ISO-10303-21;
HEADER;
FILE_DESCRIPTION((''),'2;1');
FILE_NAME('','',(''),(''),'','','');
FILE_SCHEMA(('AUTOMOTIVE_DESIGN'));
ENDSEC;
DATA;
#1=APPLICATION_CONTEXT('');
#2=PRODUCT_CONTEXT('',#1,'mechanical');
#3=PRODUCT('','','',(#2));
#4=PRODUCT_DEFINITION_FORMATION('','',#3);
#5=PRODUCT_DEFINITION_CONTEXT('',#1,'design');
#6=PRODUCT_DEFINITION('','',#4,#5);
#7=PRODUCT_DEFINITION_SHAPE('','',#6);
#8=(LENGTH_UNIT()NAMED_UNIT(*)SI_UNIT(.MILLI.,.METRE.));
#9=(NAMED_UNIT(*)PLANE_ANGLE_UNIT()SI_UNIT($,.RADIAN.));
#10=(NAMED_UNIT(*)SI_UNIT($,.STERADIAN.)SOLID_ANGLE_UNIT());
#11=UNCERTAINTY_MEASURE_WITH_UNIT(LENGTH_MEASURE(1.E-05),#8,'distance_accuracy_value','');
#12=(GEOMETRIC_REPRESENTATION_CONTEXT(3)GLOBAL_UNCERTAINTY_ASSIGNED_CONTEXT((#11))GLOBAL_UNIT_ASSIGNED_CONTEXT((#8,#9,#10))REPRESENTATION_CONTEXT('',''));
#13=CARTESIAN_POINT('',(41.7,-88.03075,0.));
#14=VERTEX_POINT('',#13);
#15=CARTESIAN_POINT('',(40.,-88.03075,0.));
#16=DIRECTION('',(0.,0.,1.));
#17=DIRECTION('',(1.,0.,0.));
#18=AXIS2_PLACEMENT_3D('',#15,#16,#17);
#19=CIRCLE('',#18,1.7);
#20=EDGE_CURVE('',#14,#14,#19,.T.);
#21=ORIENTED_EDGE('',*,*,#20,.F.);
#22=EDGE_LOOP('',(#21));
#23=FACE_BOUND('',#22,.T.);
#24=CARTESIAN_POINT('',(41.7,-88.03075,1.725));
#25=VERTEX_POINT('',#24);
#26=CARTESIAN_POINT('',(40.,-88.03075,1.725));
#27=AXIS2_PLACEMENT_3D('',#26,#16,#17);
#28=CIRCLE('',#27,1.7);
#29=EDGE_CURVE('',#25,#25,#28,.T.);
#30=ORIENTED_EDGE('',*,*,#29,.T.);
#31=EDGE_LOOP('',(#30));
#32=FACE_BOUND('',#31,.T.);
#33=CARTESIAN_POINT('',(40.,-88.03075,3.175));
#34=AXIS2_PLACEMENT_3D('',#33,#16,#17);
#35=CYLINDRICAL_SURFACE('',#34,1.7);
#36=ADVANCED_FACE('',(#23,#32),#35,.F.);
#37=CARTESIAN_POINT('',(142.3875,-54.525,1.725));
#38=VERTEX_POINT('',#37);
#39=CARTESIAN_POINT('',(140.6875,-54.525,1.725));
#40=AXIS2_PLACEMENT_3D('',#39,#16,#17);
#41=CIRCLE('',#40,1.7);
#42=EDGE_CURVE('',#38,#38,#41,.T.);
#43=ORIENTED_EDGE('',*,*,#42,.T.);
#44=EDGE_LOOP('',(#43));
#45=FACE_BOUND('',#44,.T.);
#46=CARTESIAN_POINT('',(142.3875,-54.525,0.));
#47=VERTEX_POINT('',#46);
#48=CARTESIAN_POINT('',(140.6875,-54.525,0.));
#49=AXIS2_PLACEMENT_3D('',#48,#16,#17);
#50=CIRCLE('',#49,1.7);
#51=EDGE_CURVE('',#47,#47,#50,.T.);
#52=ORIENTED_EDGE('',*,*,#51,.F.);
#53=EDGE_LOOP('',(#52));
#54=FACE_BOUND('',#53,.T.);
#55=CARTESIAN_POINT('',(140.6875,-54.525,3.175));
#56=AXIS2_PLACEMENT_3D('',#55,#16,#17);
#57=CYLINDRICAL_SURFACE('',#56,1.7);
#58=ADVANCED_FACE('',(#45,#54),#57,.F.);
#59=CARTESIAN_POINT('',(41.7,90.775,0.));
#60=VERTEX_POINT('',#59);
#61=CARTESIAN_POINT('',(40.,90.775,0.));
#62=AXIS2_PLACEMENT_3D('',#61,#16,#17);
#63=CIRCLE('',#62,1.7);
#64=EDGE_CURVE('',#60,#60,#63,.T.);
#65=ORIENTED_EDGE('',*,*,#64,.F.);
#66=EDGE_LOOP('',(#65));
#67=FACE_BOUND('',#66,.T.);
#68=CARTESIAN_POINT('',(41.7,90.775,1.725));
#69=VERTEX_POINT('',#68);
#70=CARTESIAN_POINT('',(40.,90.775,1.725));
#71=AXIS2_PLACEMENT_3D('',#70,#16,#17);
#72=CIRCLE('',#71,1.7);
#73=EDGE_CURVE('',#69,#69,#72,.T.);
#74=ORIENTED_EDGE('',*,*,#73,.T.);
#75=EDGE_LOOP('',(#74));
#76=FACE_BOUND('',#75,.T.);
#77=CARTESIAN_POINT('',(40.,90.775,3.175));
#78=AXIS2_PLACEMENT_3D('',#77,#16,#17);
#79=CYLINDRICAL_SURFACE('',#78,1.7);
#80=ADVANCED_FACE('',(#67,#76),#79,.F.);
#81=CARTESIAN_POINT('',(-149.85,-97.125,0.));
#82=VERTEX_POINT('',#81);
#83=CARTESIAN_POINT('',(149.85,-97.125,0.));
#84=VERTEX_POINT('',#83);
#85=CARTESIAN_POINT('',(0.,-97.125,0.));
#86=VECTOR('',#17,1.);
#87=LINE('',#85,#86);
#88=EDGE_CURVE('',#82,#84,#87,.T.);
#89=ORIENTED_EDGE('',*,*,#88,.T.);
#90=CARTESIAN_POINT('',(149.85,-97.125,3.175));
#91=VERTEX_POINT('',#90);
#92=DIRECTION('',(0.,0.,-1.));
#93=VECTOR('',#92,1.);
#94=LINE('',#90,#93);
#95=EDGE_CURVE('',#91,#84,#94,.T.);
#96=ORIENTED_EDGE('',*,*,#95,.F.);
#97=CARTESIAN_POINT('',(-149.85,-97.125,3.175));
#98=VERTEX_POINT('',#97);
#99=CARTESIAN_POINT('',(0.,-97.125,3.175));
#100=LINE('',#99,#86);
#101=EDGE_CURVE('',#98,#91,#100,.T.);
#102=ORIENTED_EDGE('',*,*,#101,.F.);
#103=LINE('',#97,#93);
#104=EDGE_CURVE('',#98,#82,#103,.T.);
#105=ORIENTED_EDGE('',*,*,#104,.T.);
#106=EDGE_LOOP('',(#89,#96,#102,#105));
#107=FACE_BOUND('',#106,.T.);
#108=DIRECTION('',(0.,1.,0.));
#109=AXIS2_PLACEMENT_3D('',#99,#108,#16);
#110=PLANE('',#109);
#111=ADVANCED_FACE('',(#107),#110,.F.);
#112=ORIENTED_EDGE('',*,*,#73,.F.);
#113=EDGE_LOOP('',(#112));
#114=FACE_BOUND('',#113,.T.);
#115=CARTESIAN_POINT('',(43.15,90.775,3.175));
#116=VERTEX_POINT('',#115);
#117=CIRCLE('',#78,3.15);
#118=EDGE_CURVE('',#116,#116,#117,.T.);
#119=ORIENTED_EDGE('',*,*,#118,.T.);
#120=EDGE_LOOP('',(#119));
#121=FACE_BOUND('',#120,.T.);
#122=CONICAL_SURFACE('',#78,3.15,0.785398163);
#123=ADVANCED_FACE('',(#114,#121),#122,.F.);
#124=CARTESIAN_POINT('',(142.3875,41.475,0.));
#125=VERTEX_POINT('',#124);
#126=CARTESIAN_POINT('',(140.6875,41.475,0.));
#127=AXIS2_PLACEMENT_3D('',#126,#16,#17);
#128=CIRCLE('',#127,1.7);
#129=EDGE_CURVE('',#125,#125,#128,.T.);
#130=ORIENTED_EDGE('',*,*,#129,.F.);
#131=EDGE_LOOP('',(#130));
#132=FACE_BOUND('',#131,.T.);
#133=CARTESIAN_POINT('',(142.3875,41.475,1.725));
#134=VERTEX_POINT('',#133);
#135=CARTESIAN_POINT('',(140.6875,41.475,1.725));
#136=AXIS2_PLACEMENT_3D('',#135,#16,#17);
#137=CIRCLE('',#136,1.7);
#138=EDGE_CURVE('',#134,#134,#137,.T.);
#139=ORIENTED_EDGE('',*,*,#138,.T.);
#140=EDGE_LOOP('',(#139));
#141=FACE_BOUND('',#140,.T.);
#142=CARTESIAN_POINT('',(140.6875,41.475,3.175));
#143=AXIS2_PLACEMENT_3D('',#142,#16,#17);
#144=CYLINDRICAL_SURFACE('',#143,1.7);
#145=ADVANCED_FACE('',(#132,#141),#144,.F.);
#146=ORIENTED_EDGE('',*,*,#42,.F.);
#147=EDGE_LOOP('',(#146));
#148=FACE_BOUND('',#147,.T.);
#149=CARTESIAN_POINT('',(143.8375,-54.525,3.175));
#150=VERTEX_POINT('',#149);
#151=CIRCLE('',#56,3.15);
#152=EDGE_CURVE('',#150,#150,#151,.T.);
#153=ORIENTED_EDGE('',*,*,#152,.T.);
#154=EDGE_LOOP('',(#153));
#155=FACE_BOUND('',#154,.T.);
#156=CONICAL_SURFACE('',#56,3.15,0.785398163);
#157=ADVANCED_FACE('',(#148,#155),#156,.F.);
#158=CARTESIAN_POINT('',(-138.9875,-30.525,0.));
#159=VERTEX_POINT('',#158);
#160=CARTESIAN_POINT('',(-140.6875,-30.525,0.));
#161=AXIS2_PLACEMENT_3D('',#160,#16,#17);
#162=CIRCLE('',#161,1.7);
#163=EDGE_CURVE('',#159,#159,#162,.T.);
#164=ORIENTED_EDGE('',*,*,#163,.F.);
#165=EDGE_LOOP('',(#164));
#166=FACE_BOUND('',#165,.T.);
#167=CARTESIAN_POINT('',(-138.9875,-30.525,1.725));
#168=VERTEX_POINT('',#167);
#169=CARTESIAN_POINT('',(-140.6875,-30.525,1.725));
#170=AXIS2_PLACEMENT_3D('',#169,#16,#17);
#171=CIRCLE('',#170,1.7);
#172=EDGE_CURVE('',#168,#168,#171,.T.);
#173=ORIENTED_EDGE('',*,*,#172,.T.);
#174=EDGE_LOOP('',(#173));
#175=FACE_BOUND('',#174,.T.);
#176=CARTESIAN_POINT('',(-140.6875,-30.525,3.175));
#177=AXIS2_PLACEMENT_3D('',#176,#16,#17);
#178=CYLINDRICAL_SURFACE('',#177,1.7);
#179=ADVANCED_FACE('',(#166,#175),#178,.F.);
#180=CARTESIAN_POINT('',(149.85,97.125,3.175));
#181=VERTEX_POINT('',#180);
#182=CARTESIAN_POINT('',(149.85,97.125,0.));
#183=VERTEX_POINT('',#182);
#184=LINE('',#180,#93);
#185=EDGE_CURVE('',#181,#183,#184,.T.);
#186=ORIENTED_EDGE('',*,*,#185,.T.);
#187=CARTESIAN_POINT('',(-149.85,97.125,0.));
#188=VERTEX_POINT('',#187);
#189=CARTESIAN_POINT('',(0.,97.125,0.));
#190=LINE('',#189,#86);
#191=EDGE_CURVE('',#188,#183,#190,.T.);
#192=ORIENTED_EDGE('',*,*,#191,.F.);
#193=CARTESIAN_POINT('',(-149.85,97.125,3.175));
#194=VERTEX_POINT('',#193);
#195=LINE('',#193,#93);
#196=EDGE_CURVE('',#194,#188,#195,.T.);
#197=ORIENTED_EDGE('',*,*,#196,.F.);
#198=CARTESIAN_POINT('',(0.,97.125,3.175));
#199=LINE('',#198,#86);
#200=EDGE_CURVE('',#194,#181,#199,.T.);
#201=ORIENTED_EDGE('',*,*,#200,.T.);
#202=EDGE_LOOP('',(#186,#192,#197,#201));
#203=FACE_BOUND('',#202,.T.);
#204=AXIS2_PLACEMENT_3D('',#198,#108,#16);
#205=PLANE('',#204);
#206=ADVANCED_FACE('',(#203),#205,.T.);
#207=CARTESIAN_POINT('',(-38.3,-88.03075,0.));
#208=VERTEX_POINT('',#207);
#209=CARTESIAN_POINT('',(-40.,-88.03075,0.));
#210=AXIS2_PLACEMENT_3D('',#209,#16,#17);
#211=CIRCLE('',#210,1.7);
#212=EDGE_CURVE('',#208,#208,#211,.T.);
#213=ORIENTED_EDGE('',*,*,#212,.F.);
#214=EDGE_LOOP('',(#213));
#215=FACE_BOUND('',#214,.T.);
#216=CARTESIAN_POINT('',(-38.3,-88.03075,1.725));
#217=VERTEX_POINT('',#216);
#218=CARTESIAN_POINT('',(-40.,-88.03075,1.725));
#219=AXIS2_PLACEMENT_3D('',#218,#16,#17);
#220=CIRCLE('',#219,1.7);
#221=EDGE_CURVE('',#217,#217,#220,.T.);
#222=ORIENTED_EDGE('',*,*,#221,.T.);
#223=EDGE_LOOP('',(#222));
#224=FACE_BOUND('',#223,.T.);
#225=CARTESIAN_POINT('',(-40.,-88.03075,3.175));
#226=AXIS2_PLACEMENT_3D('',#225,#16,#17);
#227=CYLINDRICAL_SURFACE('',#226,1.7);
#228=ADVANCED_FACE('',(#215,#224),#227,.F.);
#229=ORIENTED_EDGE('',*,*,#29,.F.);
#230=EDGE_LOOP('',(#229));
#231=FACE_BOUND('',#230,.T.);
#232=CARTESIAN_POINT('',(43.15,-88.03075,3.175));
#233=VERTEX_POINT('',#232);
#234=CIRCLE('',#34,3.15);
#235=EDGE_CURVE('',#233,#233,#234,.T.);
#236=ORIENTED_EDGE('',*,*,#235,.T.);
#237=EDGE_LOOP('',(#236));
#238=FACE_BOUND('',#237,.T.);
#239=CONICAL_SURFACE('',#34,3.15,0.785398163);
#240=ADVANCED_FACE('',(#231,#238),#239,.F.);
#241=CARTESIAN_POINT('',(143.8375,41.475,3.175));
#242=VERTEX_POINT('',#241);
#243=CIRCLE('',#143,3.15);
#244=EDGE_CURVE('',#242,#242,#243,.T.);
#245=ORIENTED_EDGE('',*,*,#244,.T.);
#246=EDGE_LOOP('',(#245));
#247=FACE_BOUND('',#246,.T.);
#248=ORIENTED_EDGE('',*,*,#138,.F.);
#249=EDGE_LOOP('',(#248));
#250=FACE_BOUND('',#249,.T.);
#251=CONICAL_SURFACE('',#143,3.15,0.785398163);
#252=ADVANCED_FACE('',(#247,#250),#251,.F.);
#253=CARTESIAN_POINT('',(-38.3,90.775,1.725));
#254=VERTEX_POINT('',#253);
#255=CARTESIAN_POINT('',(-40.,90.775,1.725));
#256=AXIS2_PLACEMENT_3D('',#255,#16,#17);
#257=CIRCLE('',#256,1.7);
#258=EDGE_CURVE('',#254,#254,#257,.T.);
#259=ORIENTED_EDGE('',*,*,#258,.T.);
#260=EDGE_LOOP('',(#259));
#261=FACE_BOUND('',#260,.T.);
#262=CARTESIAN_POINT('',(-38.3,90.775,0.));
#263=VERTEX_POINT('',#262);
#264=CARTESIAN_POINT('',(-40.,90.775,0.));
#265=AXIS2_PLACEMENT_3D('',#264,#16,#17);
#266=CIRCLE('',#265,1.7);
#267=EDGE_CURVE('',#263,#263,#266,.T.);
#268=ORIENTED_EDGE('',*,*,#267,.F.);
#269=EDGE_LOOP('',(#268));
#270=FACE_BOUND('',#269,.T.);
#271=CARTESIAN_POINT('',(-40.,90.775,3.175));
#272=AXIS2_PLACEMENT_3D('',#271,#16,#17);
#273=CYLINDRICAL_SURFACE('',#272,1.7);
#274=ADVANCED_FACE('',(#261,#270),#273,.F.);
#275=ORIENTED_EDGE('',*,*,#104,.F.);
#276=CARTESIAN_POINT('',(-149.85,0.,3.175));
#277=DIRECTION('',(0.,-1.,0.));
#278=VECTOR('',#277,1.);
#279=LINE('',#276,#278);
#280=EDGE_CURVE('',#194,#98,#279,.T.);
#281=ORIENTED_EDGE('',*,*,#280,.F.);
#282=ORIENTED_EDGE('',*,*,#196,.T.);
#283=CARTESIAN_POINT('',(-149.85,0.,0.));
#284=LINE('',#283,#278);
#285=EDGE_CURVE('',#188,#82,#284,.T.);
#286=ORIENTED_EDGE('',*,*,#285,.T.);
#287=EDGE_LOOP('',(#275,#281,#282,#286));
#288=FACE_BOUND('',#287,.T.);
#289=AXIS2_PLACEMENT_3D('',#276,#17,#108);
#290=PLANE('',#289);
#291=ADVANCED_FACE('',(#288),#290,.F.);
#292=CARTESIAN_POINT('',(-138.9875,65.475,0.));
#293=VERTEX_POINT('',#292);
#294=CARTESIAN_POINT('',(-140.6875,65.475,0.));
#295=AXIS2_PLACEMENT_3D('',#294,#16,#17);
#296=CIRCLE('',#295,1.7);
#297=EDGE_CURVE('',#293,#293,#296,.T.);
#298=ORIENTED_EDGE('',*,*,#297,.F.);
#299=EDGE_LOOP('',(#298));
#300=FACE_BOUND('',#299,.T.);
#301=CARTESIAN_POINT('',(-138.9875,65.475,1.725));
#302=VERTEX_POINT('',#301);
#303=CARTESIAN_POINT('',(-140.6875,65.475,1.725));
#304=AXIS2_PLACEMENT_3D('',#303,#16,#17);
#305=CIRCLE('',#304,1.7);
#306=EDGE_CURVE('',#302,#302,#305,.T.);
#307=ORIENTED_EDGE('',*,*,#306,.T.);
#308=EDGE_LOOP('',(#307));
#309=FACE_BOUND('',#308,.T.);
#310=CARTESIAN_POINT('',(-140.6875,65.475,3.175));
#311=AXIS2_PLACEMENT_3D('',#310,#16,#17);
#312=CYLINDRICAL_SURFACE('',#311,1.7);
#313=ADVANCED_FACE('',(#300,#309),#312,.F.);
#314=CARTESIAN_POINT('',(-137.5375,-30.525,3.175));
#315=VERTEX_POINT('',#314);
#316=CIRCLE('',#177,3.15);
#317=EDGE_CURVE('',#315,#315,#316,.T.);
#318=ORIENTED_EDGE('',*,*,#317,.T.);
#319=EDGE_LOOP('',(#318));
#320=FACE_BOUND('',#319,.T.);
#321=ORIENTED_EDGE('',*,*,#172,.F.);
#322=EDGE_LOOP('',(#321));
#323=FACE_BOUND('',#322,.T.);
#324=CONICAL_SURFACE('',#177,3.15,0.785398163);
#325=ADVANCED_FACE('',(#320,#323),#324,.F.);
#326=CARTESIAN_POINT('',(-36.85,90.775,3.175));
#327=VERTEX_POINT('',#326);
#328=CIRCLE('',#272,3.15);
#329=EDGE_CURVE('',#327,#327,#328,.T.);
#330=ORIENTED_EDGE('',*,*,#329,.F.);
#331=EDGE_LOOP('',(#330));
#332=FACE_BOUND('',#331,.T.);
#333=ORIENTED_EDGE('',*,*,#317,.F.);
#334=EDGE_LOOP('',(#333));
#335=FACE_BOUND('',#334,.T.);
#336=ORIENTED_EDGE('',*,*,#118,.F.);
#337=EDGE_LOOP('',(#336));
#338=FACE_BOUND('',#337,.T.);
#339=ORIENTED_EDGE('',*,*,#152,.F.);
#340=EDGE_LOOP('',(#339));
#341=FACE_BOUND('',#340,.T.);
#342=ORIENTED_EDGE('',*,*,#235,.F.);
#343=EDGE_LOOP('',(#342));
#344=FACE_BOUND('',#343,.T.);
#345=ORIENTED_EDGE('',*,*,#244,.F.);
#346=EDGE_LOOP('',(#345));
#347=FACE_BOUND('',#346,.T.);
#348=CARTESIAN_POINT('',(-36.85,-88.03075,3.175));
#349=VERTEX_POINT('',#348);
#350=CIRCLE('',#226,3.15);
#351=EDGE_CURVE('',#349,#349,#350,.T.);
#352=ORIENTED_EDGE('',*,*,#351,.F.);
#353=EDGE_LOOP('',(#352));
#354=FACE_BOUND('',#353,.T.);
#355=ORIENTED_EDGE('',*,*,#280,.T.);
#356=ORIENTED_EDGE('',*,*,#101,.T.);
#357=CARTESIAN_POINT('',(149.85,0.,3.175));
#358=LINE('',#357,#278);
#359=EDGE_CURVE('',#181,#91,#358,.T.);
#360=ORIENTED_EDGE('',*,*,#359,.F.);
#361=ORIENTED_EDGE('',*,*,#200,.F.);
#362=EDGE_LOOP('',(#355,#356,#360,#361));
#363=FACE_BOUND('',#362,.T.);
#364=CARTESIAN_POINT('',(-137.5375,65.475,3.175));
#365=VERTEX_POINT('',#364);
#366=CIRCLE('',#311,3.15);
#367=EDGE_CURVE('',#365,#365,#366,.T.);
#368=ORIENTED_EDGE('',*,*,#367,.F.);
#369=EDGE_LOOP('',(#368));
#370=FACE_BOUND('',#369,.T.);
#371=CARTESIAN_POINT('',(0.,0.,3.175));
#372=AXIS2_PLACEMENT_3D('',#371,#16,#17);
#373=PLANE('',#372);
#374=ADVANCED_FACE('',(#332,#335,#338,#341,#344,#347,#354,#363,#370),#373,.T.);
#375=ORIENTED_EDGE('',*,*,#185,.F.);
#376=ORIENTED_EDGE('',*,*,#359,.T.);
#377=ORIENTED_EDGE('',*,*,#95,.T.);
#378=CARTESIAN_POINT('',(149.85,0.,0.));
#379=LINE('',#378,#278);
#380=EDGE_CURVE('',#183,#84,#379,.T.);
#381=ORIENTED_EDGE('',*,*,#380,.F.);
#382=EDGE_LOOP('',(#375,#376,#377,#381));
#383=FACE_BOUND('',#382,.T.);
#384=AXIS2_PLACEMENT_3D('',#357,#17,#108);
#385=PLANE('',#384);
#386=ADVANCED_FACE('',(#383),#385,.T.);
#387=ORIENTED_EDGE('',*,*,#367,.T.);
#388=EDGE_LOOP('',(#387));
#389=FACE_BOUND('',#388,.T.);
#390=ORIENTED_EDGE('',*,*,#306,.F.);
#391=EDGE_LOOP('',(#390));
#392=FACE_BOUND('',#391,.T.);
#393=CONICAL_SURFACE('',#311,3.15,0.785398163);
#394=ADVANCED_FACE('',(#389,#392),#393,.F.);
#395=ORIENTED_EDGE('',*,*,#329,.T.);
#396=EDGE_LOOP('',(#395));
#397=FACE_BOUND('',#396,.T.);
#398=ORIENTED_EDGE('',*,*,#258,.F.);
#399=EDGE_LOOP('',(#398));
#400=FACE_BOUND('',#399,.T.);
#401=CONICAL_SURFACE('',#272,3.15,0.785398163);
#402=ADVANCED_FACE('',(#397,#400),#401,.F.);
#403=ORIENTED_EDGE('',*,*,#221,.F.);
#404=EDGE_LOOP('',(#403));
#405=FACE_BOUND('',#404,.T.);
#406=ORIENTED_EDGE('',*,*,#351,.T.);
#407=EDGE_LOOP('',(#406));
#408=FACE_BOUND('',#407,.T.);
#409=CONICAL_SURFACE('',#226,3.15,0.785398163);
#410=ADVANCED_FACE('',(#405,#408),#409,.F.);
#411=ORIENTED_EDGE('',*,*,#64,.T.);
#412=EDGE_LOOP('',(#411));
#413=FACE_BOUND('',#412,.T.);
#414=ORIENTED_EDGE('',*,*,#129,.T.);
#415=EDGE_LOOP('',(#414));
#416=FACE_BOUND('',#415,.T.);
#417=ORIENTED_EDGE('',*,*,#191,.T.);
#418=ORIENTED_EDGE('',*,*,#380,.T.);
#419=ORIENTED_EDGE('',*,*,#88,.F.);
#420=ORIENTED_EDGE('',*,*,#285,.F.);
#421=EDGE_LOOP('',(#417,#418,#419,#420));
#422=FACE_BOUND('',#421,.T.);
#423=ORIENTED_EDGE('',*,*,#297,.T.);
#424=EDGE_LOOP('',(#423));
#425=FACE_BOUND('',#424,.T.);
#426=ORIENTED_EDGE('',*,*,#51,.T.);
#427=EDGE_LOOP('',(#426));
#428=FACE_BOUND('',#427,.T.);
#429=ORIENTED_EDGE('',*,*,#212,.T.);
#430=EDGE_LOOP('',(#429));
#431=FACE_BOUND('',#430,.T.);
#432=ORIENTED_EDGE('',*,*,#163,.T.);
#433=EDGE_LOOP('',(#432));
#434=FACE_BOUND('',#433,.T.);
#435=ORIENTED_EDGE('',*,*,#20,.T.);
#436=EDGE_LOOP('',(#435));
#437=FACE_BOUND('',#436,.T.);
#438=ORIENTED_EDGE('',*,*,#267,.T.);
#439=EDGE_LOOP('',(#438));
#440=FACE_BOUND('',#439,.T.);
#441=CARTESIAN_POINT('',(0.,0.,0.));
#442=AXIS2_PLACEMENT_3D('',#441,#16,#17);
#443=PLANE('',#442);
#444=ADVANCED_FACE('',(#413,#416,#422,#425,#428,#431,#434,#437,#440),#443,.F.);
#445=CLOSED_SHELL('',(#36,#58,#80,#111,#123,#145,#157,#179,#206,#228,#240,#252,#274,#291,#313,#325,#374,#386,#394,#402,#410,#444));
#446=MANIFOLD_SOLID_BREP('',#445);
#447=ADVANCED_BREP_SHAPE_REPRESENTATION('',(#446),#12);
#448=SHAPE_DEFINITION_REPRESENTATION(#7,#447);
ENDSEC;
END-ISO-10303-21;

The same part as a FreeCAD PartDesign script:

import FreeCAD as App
import Part
import Sketcher

V = App.Vector


def add_polygon(sketch, points):
    """Adds a closed chain of lines whose ends are joined by coincident constraints."""
    first, n = sketch.GeometryCount, len(points)
    for a, b in zip(points, points[1:] + points[:1]):
        sketch.addGeometry(Part.LineSegment(App.Vector(*a, 0), App.Vector(*b, 0)), False)
    for i in range(n):
        sketch.addConstraint(Sketcher.Constraint("Coincident", first + i, 2, first + (i + 1) % n, 1))

doc = App.newDocument("Part")
body = doc.addObject("PartDesign::Body", "Body")

# Sketch on XY plane
sketch1 = body.newObject("Sketcher::SketchObject", "Sketch")
sketch1.AttachmentSupport = (doc.getObject("XY_Plane"), [""])
sketch1.MapMode = "FlatFace"
add_polygon(sketch1, [(-149.85, -97.125), (149.85, -97.125), (149.85, 97.125), (-149.85, 97.125)])  # lines 0-3
sketch1.addConstraint(Sketcher.Constraint("Horizontal", 0))
sketch1.addConstraint(Sketcher.Constraint("Vertical", 1))
sketch1.addConstraint(Sketcher.Constraint("Horizontal", 2))
sketch1.addConstraint(Sketcher.Constraint("Vertical", 3))
sketch1.addConstraint(Sketcher.Constraint("Symmetric", 0, 2, 2, 2, -1, 1))
sketch1.addConstraint(Sketcher.Constraint("DistanceX", 0, 1, 0, 2, 299.7))
sketch1.addConstraint(Sketcher.Constraint("DistanceY", 1, 1, 1, 2, 194.25))
pad1 = body.newObject("PartDesign::Pad", "Pad")
pad1.Profile = sketch1
pad1.Length = 3.175

# Sketch on XY plane
sketch2 = body.newObject("Sketcher::SketchObject", "Sketch001")
sketch2.AttachmentSupport = (doc.getObject("XY_Plane"), [""])
sketch2.MapMode = "FlatFace"
sketch2.AttachmentOffset = App.Placement(V(0, 0, 3.175), App.Rotation())
sketch2.addGeometry(Part.Circle(V(-40, 90.775, 0), V(0, 0, 1), 1.7), False)
sketch2.addGeometry(Part.Circle(V(140.6875, 41.475, 0), V(0, 0, 1), 1.7), False)
sketch2.addGeometry(Part.Circle(V(140.6875, -54.525, 0), V(0, 0, 1), 1.7), False)
sketch2.addGeometry(Part.Circle(V(40, -88.03075, 0), V(0, 0, 1), 1.7), False)
sketch2.addGeometry(Part.Circle(V(-40, -88.03075, 0), V(0, 0, 1), 1.7), False)
sketch2.addGeometry(Part.Circle(V(-140.6875, -30.525, 0), V(0, 0, 1), 1.7), False)
sketch2.addGeometry(Part.Circle(V(-140.6875, 65.475, 0), V(0, 0, 1), 1.7), False)
sketch2.addGeometry(Part.Circle(V(40, 90.775, 0), V(0, 0, 1), 1.7), False)
sketch2.addConstraint(Sketcher.Constraint("Equal", 0, 1))
sketch2.addConstraint(Sketcher.Constraint("Equal", 1, 2))
sketch2.addConstraint(Sketcher.Constraint("Equal", 2, 3))
sketch2.addConstraint(Sketcher.Constraint("Equal", 3, 4))
sketch2.addConstraint(Sketcher.Constraint("Equal", 4, 5))
sketch2.addConstraint(Sketcher.Constraint("Equal", 5, 6))
sketch2.addConstraint(Sketcher.Constraint("Equal", 6, 7))
sketch2.addConstraint(Sketcher.Constraint("Symmetric", 3, 3, 4, 3, -2))
sketch2.addConstraint(Sketcher.Constraint("Symmetric", 0, 3, 7, 3, -2))
sketch2.addConstraint(Sketcher.Constraint("Vertical", 1, 3, 2, 3))
sketch2.addConstraint(Sketcher.Constraint("Vertical", 0, 3, 4, 3))
sketch2.addConstraint(Sketcher.Constraint("Vertical", 5, 3, 6, 3))
sketch2.addConstraint(Sketcher.Constraint("Diameter", 0, 3.4))
sketch2.addConstraint(Sketcher.Constraint("DistanceX", 0, 3, -1, 1, 40.0))
sketch2.addConstraint(Sketcher.Constraint("DistanceY", 2, 3, 1, 3, 96.0))
sketch2.addConstraint(Sketcher.Constraint("DistanceY", 2, 3, 5, 3, 24.0))
sketch2.addConstraint(Sketcher.Constraint("DistanceY", 5, 3, 6, 3, 96.0))
sketch2.addConstraint(Sketcher.Constraint("DistanceY", 1, 3, 0, 3, 49.3))
sketch2.addConstraint(Sketcher.Constraint("DistanceY", -1, 1, 0, 3, 90.775))
sketch2.addConstraint(Sketcher.Constraint("DistanceX", 5, 3, 2, 3, 281.375))
sketch2.addConstraint(Sketcher.Constraint("DistanceX", -1, 1, 1, 3, 140.6875))
sketch2.addConstraint(Sketcher.Constraint("DistanceY", 3, 3, -1, 1, 88.03075))
doc.recompute()
hole = body.newObject("PartDesign::Hole", "Hole")
hole.Profile = sketch2
hole.ThreadType = "None"
hole.Diameter = 3.4
hole.DepthType = "ThroughAll"
hole.HoleCutType = "Countersink"
hole.HoleCutDiameter = 6.3
hole.HoleCutCountersinkAngle = 90

doc.recompute()
